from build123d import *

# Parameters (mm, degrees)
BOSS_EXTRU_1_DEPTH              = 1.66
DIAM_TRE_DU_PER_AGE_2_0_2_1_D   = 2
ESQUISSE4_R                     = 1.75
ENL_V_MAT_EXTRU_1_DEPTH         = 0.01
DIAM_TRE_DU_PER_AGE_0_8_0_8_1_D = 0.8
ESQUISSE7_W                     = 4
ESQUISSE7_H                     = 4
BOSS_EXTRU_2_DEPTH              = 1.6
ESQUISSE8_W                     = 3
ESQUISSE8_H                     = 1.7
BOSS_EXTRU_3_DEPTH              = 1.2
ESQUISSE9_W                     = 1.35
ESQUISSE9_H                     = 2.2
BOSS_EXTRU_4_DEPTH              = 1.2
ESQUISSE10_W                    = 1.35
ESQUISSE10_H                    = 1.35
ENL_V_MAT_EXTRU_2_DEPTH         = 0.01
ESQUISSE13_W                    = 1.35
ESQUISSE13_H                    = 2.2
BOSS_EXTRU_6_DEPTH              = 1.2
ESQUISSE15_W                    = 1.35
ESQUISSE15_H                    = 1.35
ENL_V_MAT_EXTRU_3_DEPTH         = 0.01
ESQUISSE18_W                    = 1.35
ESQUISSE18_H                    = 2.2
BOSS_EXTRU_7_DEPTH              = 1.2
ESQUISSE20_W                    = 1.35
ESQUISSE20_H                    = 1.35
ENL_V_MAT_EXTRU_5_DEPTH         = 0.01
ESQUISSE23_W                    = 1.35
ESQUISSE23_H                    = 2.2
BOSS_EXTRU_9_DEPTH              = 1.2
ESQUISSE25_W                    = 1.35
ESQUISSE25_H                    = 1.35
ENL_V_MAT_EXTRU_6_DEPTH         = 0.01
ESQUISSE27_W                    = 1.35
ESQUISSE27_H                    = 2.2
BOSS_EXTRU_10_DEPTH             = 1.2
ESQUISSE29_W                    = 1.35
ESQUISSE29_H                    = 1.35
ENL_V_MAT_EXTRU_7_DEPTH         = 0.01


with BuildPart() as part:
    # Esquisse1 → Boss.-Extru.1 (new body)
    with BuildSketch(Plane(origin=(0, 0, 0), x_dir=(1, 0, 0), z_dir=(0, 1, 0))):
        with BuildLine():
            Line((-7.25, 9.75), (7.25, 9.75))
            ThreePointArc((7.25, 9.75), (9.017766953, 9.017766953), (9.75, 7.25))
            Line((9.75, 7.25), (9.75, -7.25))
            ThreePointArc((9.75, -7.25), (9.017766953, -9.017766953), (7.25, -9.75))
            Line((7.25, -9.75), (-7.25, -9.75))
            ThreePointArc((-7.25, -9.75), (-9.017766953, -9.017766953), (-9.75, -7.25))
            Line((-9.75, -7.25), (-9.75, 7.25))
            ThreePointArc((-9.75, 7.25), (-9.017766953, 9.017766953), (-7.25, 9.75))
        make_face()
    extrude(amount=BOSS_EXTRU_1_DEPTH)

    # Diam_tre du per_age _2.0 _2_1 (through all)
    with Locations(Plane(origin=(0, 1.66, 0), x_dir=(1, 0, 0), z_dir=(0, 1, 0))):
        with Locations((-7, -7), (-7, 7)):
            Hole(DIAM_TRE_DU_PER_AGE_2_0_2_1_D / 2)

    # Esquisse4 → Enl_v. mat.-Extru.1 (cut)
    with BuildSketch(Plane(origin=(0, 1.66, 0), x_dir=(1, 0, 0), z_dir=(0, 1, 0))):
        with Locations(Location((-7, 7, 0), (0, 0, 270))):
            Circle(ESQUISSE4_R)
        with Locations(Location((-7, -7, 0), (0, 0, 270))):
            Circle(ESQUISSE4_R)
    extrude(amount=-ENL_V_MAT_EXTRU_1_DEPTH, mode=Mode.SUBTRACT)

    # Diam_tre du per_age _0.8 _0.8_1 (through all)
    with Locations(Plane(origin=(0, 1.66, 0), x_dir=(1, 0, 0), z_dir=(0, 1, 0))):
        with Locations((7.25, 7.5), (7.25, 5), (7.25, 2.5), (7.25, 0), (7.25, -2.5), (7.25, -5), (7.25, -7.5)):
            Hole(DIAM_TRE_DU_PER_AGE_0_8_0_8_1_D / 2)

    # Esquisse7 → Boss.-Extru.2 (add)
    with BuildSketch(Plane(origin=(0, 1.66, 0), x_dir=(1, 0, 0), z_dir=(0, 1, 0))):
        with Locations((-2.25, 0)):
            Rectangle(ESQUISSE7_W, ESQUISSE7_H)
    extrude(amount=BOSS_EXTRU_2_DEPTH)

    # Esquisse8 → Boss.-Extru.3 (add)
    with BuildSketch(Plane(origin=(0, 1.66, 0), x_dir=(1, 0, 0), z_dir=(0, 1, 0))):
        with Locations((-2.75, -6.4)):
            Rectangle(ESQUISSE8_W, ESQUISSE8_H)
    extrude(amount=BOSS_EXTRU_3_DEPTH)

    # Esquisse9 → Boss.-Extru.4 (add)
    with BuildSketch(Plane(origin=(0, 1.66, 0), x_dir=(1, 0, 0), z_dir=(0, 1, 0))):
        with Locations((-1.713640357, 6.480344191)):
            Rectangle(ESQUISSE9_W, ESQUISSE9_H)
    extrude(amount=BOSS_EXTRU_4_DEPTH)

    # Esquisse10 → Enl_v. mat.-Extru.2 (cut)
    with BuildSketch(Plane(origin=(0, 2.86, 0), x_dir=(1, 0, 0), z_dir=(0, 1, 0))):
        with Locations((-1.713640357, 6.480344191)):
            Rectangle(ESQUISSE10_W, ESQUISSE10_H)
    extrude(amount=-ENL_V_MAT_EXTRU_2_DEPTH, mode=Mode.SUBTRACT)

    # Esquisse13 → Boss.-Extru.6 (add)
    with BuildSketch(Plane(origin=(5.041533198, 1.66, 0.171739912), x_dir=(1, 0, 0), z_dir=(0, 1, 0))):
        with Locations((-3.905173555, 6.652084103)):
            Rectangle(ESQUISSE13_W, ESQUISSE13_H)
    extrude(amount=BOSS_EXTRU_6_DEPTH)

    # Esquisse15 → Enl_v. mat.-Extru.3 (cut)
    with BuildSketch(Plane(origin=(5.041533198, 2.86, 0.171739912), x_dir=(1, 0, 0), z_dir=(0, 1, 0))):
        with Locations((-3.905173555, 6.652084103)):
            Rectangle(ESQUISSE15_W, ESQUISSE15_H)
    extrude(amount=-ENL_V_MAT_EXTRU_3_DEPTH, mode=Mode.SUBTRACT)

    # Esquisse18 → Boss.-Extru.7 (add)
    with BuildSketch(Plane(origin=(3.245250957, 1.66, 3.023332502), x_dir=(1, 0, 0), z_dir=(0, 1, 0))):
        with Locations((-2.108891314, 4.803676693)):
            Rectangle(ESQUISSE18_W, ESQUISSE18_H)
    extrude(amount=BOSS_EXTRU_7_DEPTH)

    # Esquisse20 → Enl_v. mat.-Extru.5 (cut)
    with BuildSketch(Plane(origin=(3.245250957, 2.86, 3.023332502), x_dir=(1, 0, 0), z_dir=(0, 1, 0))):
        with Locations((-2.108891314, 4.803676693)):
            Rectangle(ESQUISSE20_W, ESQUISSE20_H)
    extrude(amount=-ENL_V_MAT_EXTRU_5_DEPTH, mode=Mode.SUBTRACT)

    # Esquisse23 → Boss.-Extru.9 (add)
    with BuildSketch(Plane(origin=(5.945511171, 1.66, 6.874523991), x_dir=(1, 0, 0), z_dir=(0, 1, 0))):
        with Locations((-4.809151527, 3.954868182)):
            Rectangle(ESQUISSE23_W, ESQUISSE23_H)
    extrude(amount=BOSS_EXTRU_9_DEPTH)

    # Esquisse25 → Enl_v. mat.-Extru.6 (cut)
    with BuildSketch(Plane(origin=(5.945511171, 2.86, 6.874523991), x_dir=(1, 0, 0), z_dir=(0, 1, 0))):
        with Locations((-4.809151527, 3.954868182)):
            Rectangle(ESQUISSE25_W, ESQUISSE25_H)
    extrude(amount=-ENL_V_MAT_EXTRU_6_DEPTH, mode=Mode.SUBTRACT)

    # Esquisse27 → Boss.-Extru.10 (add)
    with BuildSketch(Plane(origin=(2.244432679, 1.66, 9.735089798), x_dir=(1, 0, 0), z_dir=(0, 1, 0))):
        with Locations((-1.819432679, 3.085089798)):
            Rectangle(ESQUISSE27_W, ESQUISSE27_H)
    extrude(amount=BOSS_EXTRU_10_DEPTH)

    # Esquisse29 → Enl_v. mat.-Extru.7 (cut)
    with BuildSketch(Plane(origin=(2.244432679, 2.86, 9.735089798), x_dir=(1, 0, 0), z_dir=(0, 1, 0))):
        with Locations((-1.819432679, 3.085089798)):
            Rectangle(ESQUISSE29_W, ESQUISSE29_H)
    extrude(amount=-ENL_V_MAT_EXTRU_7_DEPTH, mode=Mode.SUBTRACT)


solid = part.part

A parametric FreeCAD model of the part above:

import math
import FreeCAD as App
import Part
import Sketcher
from FreeCAD import Vector

doc = App.newDocument("Part")
body = doc.addObject("PartDesign::Body", "Body")

# Sketch on XZ plane
sketch1 = body.newObject("Sketcher::SketchObject", "Sketch")
sketch1.AttachmentSupport = (doc.getObject("XZ_Plane"), [""])
sketch1.MapMode = "FlatFace"
sketch1.addGeometry(Part.LineSegment(Vector(7.2, -9.8, 0), Vector(-7.2, -9.8, 0)), False)
sketch1.addGeometry(Part.ArcOfCircle(Part.Circle(Vector(-7.2, -7.2, 0), Vector(0, 0, 1), 2.5), math.radians(180), math.radians(270)), False)
sketch1.addGeometry(Part.LineSegment(Vector(-9.8, -7.2, 0), Vector(-9.8, 7.2, 0)), False)
sketch1.addGeometry(Part.ArcOfCircle(Part.Circle(Vector(-7.2, 7.2, 0), Vector(0, 0, 1), 2.5), math.radians(90), math.radians(180)), False)
sketch1.addGeometry(Part.LineSegment(Vector(-7.2, 9.8, 0), Vector(7.2, 9.8, 0)), False)
sketch1.addGeometry(Part.ArcOfCircle(Part.Circle(Vector(7.2, 7.2, 0), Vector(0, 0, 1), 2.5), math.radians(0), math.radians(90)), False)
sketch1.addGeometry(Part.LineSegment(Vector(9.8, 7.2, 0), Vector(9.8, -7.2, 0)), False)
sketch1.addGeometry(Part.ArcOfCircle(Part.Circle(Vector(7.2, -7.2, 0), Vector(0, 0, 1), 2.5), math.radians(-90), math.radians(0)), False)
sketch1.addConstraint(Sketcher.Constraint("Tangent", 0, 2, 1, 2))
sketch1.addConstraint(Sketcher.Constraint("Tangent", 1, 1, 2, 1))
sketch1.addConstraint(Sketcher.Constraint("Tangent", 2, 2, 3, 2))
sketch1.addConstraint(Sketcher.Constraint("Tangent", 3, 1, 4, 1))
sketch1.addConstraint(Sketcher.Constraint("Tangent", 4, 2, 5, 2))
sketch1.addConstraint(Sketcher.Constraint("Tangent", 5, 1, 6, 1))
sketch1.addConstraint(Sketcher.Constraint("Tangent", 6, 2, 7, 2))
sketch1.addConstraint(Sketcher.Constraint("Tangent", 7, 1, 0, 1))
sketch1.addConstraint(Sketcher.Constraint("Horizontal", 0))
sketch1.addConstraint(Sketcher.Constraint("Vertical", 2))
sketch1.addConstraint(Sketcher.Constraint("Horizontal", 4))
sketch1.addConstraint(Sketcher.Constraint("Vertical", 6))
sketch1.addConstraint(Sketcher.Constraint("Equal", 1, 3))
sketch1.addConstraint(Sketcher.Constraint("Equal", 3, 5))
sketch1.addConstraint(Sketcher.Constraint("Equal", 5, 7))
sketch1.addConstraint(Sketcher.Constraint("Symmetric", 1, 3, 5, 3, -1, 1))
sketch1.addConstraint(Sketcher.Constraint("Equal", 4, 2))
sketch1.addConstraint(Sketcher.Constraint("Radius", 1, 2.5))
sketch1.addConstraint(Sketcher.Constraint("DistanceX", 0, 2, 0, 1, 14.5))
pad1 = body.newObject("PartDesign::Pad", "Pad")
pad1.Profile = sketch1
pad1.Length = 1.66
pad1.Reversed = True

# Sketch on XZ plane
sketch2 = body.newObject("Sketcher::SketchObject", "Sketch001")
sketch2.AttachmentSupport = (doc.getObject("XZ_Plane"), [""])
sketch2.MapMode = "FlatFace"
sketch2.AttachmentOffset = App.Placement(Vector(0, 0, -1.66), App.Rotation())
sketch2.addGeometry(Part.Circle(Vector(-7, 7, 0), Vector(0, 0, 1), 1), False)
sketch2.addGeometry(Part.Circle(Vector(-7, -7, 0), Vector(0, 0, 1), 1), False)
sketch2.addConstraint(Sketcher.Constraint("Equal", 0, 1))
sketch2.addConstraint(Sketcher.Constraint("Symmetric", 0, 3, 1, 3, -1))
sketch2.addConstraint(Sketcher.Constraint("Diameter", 0, 2.0))
sketch2.addConstraint(Sketcher.Constraint("DistanceX", 0, 3, -1, 1, 7.0))
sketch2.addConstraint(Sketcher.Constraint("DistanceY", -1, 1, 0, 3, 7.0))
doc.recompute()
hole = body.newObject("PartDesign::Hole", "Hole")
hole.Profile = sketch2
hole.ThreadType = "None"
hole.Diameter = 2
hole.DepthType = "ThroughAll"
hole.Reversed = True

# Sketch on XZ plane
sketch3 = body.newObject("Sketcher::SketchObject", "Sketch002")
sketch3.AttachmentSupport = (doc.getObject("XZ_Plane"), [""])
sketch3.MapMode = "FlatFace"
sketch3.AttachmentOffset = App.Placement(Vector(0, 0, -1.66), App.Rotation())
sketch3.addGeometry(Part.Circle(Vector(-7, -7, 0), Vector(0, 0, 1), 1.8), False)
sketch3.addGeometry(Part.Circle(Vector(-7, 7, 0), Vector(0, 0, 1), 1.8), False)
sketch3.addConstraint(Sketcher.Constraint("Equal", 0, 1))
sketch3.addConstraint(Sketcher.Constraint("Symmetric", 0, 3, 1, 3, -1))
sketch3.addConstraint(Sketcher.Constraint("Diameter", 0, 3.5))
sketch3.addConstraint(Sketcher.Constraint("DistanceX", 0, 3, -1, 1, 7.0))
sketch3.addConstraint(Sketcher.Constraint("DistanceY", 0, 3, -1, 1, 7.0))
pocket1 = body.newObject("PartDesign::Pocket", "Pocket")
pocket1.Profile = sketch3
pocket1.Length = 0.01
pocket1.Reversed = True

# Sketch on XZ plane
sketch4 = body.newObject("Sketcher::SketchObject", "Sketch003")
sketch4.AttachmentSupport = (doc.getObject("XZ_Plane"), [""])
sketch4.MapMode = "FlatFace"
sketch4.AttachmentOffset = App.Placement(Vector(0, 0, -1.66), App.Rotation())
sketch4.addGeometry(Part.Circle(Vector(7.25, -7.5, 0), Vector(0, 0, 1), 0.4), False)
sketch4.addGeometry(Part.Circle(Vector(7.25, -5, 0), Vector(0, 0, 1), 0.4), False)
sketch4.addGeometry(Part.Circle(Vector(7.25, -2.5, 0), Vector(0, 0, 1), 0.4), False)
sketch4.addGeometry(Part.Circle(Vector(7.25, 0, 0), Vector(0, 0, 1), 0.4), False)
sketch4.addGeometry(Part.Circle(Vector(7.25, 2.5, 0), Vector(0, 0, 1), 0.4), False)
sketch4.addGeometry(Part.Circle(Vector(7.25, 5, 0), Vector(0, 0, 1), 0.4), False)
sketch4.addGeometry(Part.Circle(Vector(7.25, 7.5, 0), Vector(0, 0, 1), 0.4), False)
sketch4.addConstraint(Sketcher.Constraint("Equal", 0, 1))
sketch4.addConstraint(Sketcher.Constraint("Equal", 1, 2))
sketch4.addConstraint(Sketcher.Constraint("Equal", 2, 3))
sketch4.addConstraint(Sketcher.Constraint("Equal", 3, 4))
sketch4.addConstraint(Sketcher.Constraint("Equal", 4, 5))
sketch4.addConstraint(Sketcher.Constraint("Equal", 5, 6))
sketch4.addConstraint(Sketcher.Constraint("Symmetric", 2, 3, 4, 3, -1))
sketch4.addConstraint(Sketcher.Constraint("Symmetric", 1, 3, 5, 3, -1))
sketch4.addConstraint(Sketcher.Constraint("Symmetric", 0, 3, 6, 3, -1))
sketch4.addConstraint(Sketcher.Constraint("PointOnObject", 3, 3, -1))
sketch4.addConstraint(Sketcher.Constraint("Vertical", 0, 3, 1, 3))
sketch4.addConstraint(Sketcher.Constraint("Vertical", 1, 3, 2, 3))
sketch4.addConstraint(Sketcher.Constraint("Vertical", 2, 3, 3, 3))
sketch4.addConstraint(Sketcher.Constraint("Diameter", 0, 0.8))
sketch4.addConstraint(Sketcher.Constraint("DistanceY", 1, 3, -1, 1, 5.0))
sketch4.addConstraint(Sketcher.Constraint("DistanceY", 0, 3, 2, 3, 5.0))
sketch4.addConstraint(Sketcher.Constraint("DistanceY", 2, 3, 4, 3, 5.0))
sketch4.addConstraint(Sketcher.Constraint("DistanceX", -1, 1, 0, 3, 7.25))
doc.recompute()
hole2 = body.newObject("PartDesign::Hole", "Hole001")
hole2.Profile = sketch4
hole2.ThreadType = "None"
hole2.Diameter = 0.8
hole2.DepthType = "ThroughAll"
hole2.Reversed = True

# Sketch on XZ plane
sketch5 = body.newObject("Sketcher::SketchObject", "Sketch004")
sketch5.AttachmentSupport = (doc.getObject("XZ_Plane"), [""])
sketch5.MapMode = "FlatFace"
sketch5.AttachmentOffset = App.Placement(Vector(0, 0, -1.66), App.Rotation())
sketch5.addGeometry(Part.LineSegment(Vector(-4.2, -2, 0), Vector(-4.2, 2, 0)), False)
sketch5.addGeometry(Part.LineSegment(Vector(-4.2, 2, 0), Vector(-0.2, 2, 0)), False)
sketch5.addGeometry(Part.LineSegment(Vector(-0.2, 2, 0), Vector(-0.2, -2, 0)), False)
sketch5.addGeometry(Part.LineSegment(Vector(-0.2, -2, 0), Vector(-4.2, -2, 0)), False)
sketch5.addConstraint(Sketcher.Constraint("Coincident", 0, 2, 1, 1))
sketch5.addConstraint(Sketcher.Constraint("Coincident", 1, 2, 2, 1))
sketch5.addConstraint(Sketcher.Constraint("Coincident", 2, 2, 3, 1))
sketch5.addConstraint(Sketcher.Constraint("Coincident", 3, 2, 0, 1))
sketch5.addConstraint(Sketcher.Constraint("Vertical", 0))
sketch5.addConstraint(Sketcher.Constraint("Horizontal", 1))
sketch5.addConstraint(Sketcher.Constraint("Vertical", 2))
sketch5.addConstraint(Sketcher.Constraint("Horizontal", 3))
sketch5.addConstraint(Sketcher.Constraint("Equal", 3, 0))
sketch5.addConstraint(Sketcher.Constraint("DistanceX", 1, 1, 1, 2, 4.0))
sketch5.addConstraint(Sketcher.Constraint("DistanceY", -1, 1, 0, 2, 2.0))
sketch5.addConstraint(Sketcher.Constraint("DistanceX", 0, 2, -1, 1, 4.25))
pad2 = body.newObject("PartDesign::Pad", "Pad001")
pad2.Profile = sketch5
pad2.Length = 1.6
pad2.Reversed = True

# Sketch on XZ plane
sketch6 = body.newObject("Sketcher::SketchObject", "Sketch005")
sketch6.AttachmentSupport = (doc.getObject("XZ_Plane"), [""])
sketch6.MapMode = "FlatFace"
sketch6.AttachmentOffset = App.Placement(Vector(0, 0, -1.66), App.Rotation())
sketch6.addGeometry(Part.LineSegment(Vector(-4.2, 5.5, 0), Vector(-4.2, 7.2, 0)), False)
sketch6.addGeometry(Part.LineSegment(Vector(-4.2, 7.2, 0), Vector(-1.2, 7.2, 0)), False)
sketch6.addGeometry(Part.LineSegment(Vector(-1.2, 7.2, 0), Vector(-1.2, 5.5, 0)), False)
sketch6.addGeometry(Part.LineSegment(Vector(-1.2, 5.5, 0), Vector(-4.2, 5.5, 0)), False)
sketch6.addConstraint(Sketcher.Constraint("Coincident", 0, 2, 1, 1))
sketch6.addConstraint(Sketcher.Constraint("Coincident", 1, 2, 2, 1))
sketch6.addConstraint(Sketcher.Constraint("Coincident", 2, 2, 3, 1))
sketch6.addConstraint(Sketcher.Constraint("Coincident", 3, 2, 0, 1))
sketch6.addConstraint(Sketcher.Constraint("Vertical", 0))
sketch6.addConstraint(Sketcher.Constraint("Horizontal", 1))
sketch6.addConstraint(Sketcher.Constraint("Vertical", 2))
sketch6.addConstraint(Sketcher.Constraint("Horizontal", 3))
sketch6.addConstraint(Sketcher.Constraint("DistanceX", 1, 1, 1, 2, 3.0))
sketch6.addConstraint(Sketcher.Constraint("DistanceY", 0, 1, 0, 2, 1.7))
sketch6.addConstraint(Sketcher.Constraint("DistanceX", 0, 2, -1, 1, 4.25))
sketch6.addConstraint(Sketcher.Constraint("DistanceY", -1, 1, 0, 2, 7.25))
pad3 = body.newObject("PartDesign::Pad", "Pad002")
pad3.Profile = sketch6
pad3.Length = 1.2
pad3.Reversed = True

# Sketch on XZ plane
sketch7 = body.newObject("Sketcher::SketchObject", "Sketch006")
sketch7.AttachmentSupport = (doc.getObject("XZ_Plane"), [""])
sketch7.MapMode = "FlatFace"
sketch7.AttachmentOffset = App.Placement(Vector(0, 0, -1.66), App.Rotation())
sketch7.addGeometry(Part.LineSegment(Vector(-2.4, -7.6, 0), Vector(-2.4, -5.4, 0)), False)
sketch7.addGeometry(Part.LineSegment(Vector(-2.4, -5.4, 0), Vector(-1, -5.4, 0)), False)
sketch7.addGeometry(Part.LineSegment(Vector(-1, -5.4, 0), Vector(-1, -7.6, 0)), False)
sketch7.addGeometry(Part.LineSegment(Vector(-1, -7.6, 0), Vector(-2.4, -7.6, 0)), False)
sketch7.addConstraint(Sketcher.Constraint("Coincident", 0, 2, 1, 1))
sketch7.addConstraint(Sketcher.Constraint("Coincident", 1, 2, 2, 1))
sketch7.addConstraint(Sketcher.Constraint("Coincident", 2, 2, 3, 1))
sketch7.addConstraint(Sketcher.Constraint("Coincident", 3, 2, 0, 1))
sketch7.addConstraint(Sketcher.Constraint("Vertical", 0))
sketch7.addConstraint(Sketcher.Constraint("Horizontal", 1))
sketch7.addConstraint(Sketcher.Constraint("Vertical", 2))
sketch7.addConstraint(Sketcher.Constraint("Horizontal", 3))
sketch7.addConstraint(Sketcher.Constraint("DistanceY", 0, 1, 0, 2, 2.2))
sketch7.addConstraint(Sketcher.Constraint("DistanceX", 1, 1, 1, 2, 1.35))
sketch7.addConstraint(Sketcher.Constraint("DistanceX", 0, 2, -1, 1, 2.38864))
sketch7.addConstraint(Sketcher.Constraint("DistanceY", 0, 2, -1, 1, 5.380344))
pad4 = body.newObject("PartDesign::Pad", "Pad003")
pad4.Profile = sketch7
pad4.Length = 1.2
pad4.Reversed = True

# Sketch on XZ plane
sketch8 = body.newObject("Sketcher::SketchObject", "Sketch007")
sketch8.AttachmentSupport = (doc.getObject("XZ_Plane"), [""])
sketch8.MapMode = "FlatFace"
sketch8.AttachmentOffset = App.Placement(Vector(0, 0, -2.86), App.Rotation())
sketch8.addGeometry(Part.LineSegment(Vector(-2.4, -7.2, 0), Vector(-2.4, -5.8, 0)), False)
sketch8.addGeometry(Part.LineSegment(Vector(-2.4, -5.8, 0), Vector(-1, -5.8, 0)), False)
sketch8.addGeometry(Part.LineSegment(Vector(-1, -5.8, 0), Vector(-1, -7.2, 0)), False)
sketch8.addGeometry(Part.LineSegment(Vector(-1, -7.2, 0), Vector(-2.4, -7.2, 0)), False)
sketch8.addConstraint(Sketcher.Constraint("Coincident", 0, 2, 1, 1))
sketch8.addConstraint(Sketcher.Constraint("Coincident", 1, 2, 2, 1))
sketch8.addConstraint(Sketcher.Constraint("Coincident", 2, 2, 3, 1))
sketch8.addConstraint(Sketcher.Constraint("Coincident", 3, 2, 0, 1))
sketch8.addConstraint(Sketcher.Constraint("Vertical", 0))
sketch8.addConstraint(Sketcher.Constraint("Horizontal", 1))
sketch8.addConstraint(Sketcher.Constraint("Vertical", 2))
sketch8.addConstraint(Sketcher.Constraint("Horizontal", 3))
sketch8.addConstraint(Sketcher.Constraint("Equal", 3, 0))
sketch8.addConstraint(Sketcher.Constraint("DistanceX", 1, 1, 1, 2, 1.35))
sketch8.addConstraint(Sketcher.Constraint("DistanceX", 0, 2, -1, 1, 2.38864))
sketch8.addConstraint(Sketcher.Constraint("DistanceY", 0, 2, -1, 1, 5.805344))
pocket2 = body.newObject("PartDesign::Pocket", "Pocket001")
pocket2.Profile = sketch8
pocket2.Length = 0.01
pocket2.Reversed = True

# Sketch on XZ plane
sketch9 = body.newObject("Sketcher::SketchObject", "Sketch008")
sketch9.AttachmentSupport = (doc.getObject("XZ_Plane"), [""])
sketch9.MapMode = "FlatFace"
sketch9.AttachmentOffset = App.Placement(Vector(0, 0, -1.66), App.Rotation())
sketch9.addGeometry(Part.LineSegment(Vector(0.5, -7.6, 0), Vector(0.5, -5.4, 0)), False)
sketch9.addGeometry(Part.LineSegment(Vector(0.5, -5.4, 0), Vector(1.8, -5.4, 0)), False)
sketch9.addGeometry(Part.LineSegment(Vector(1.8, -5.4, 0), Vector(1.8, -7.6, 0)), False)
sketch9.addGeometry(Part.LineSegment(Vector(1.8, -7.6, 0), Vector(0.5, -7.6, 0)), False)
sketch9.addConstraint(Sketcher.Constraint("Coincident", 0, 2, 1, 1))
sketch9.addConstraint(Sketcher.Constraint("Coincident", 1, 2, 2, 1))
sketch9.addConstraint(Sketcher.Constraint("Coincident", 2, 2, 3, 1))
sketch9.addConstraint(Sketcher.Constraint("Coincident", 3, 2, 0, 1))
sketch9.addConstraint(Sketcher.Constraint("Vertical", 0))
sketch9.addConstraint(Sketcher.Constraint("Horizontal", 1))
sketch9.addConstraint(Sketcher.Constraint("Vertical", 2))
sketch9.addConstraint(Sketcher.Constraint("Horizontal", 3))
sketch9.addConstraint(Sketcher.Constraint("DistanceY", 0, 1, 0, 2, 2.2))
sketch9.addConstraint(Sketcher.Constraint("DistanceX", 1, 1, 1, 2, 1.35))
sketch9.addConstraint(Sketcher.Constraint("DistanceX", -1, 1, 0, 2, 0.46136))
sketch9.addConstraint(Sketcher.Constraint("DistanceY", 0, 2, -1, 1, 5.380344))
pad5 = body.newObject("PartDesign::Pad", "Pad004")
pad5.Profile = sketch9
pad5.Length = 1.2
pad5.Reversed = True

# Sketch on XZ plane
sketch10 = body.newObject("Sketcher::SketchObject", "Sketch009")
sketch10.AttachmentSupport = (doc.getObject("XZ_Plane"), [""])
sketch10.MapMode = "FlatFace"
sketch10.AttachmentOffset = App.Placement(Vector(0, 0, -2.86), App.Rotation())
sketch10.addGeometry(Part.LineSegment(Vector(0.5, -7.2, 0), Vector(0.5, -5.8, 0)), False)
sketch10.addGeometry(Part.LineSegment(Vector(0.5, -5.8, 0), Vector(1.8, -5.8, 0)), False)
sketch10.addGeometry(Part.LineSegment(Vector(1.8, -5.8, 0), Vector(1.8, -7.2, 0)), False)
sketch10.addGeometry(Part.LineSegment(Vector(1.8, -7.2, 0), Vector(0.5, -7.2, 0)), False)
sketch10.addConstraint(Sketcher.Constraint("Coincident", 0, 2, 1, 1))
sketch10.addConstraint(Sketcher.Constraint("Coincident", 1, 2, 2, 1))
sketch10.addConstraint(Sketcher.Constraint("Coincident", 2, 2, 3, 1))
sketch10.addConstraint(Sketcher.Constraint("Coincident", 3, 2, 0, 1))
sketch10.addConstraint(Sketcher.Constraint("Vertical", 0))
sketch10.addConstraint(Sketcher.Constraint("Horizontal", 1))
sketch10.addConstraint(Sketcher.Constraint("Vertical", 2))
sketch10.addConstraint(Sketcher.Constraint("Horizontal", 3))
sketch10.addConstraint(Sketcher.Constraint("Equal", 3, 0))
sketch10.addConstraint(Sketcher.Constraint("DistanceX", 1, 1, 1, 2, 1.35))
sketch10.addConstraint(Sketcher.Constraint("DistanceX", -1, 1, 0, 2, 0.46136))
sketch10.addConstraint(Sketcher.Constraint("DistanceY", 0, 2, -1, 1, 5.805344))
pocket3 = body.newObject("PartDesign::Pocket", "Pocket002")
pocket3.Profile = sketch10
pocket3.Length = 0.01
pocket3.Reversed = True

# Sketch on XZ plane
sketch11 = body.newObject("Sketcher::SketchObject", "Sketch010")
sketch11.AttachmentSupport = (doc.getObject("XZ_Plane"), [""])
sketch11.MapMode = "FlatFace"
sketch11.AttachmentOffset = App.Placement(Vector(0, 0, -1.66), App.Rotation())
sketch11.addGeometry(Part.LineSegment(Vector(0.5, -2.9, 0), Vector(0.5, -0.7, 0)), False)
sketch11.addGeometry(Part.LineSegment(Vector(0.5, -0.7, 0), Vector(1.8, -0.7, 0)), False)
sketch11.addGeometry(Part.LineSegment(Vector(1.8, -0.7, 0), Vector(1.8, -2.9, 0)), False)
sketch11.addGeometry(Part.LineSegment(Vector(1.8, -2.9, 0), Vector(0.5, -2.9, 0)), False)
sketch11.addConstraint(Sketcher.Constraint("Coincident", 0, 2, 1, 1))
sketch11.addConstraint(Sketcher.Constraint("Coincident", 1, 2, 2, 1))
sketch11.addConstraint(Sketcher.Constraint("Coincident", 2, 2, 3, 1))
sketch11.addConstraint(Sketcher.Constraint("Coincident", 3, 2, 0, 1))
sketch11.addConstraint(Sketcher.Constraint("Vertical", 0))
sketch11.addConstraint(Sketcher.Constraint("Horizontal", 1))
sketch11.addConstraint(Sketcher.Constraint("Vertical", 2))
sketch11.addConstraint(Sketcher.Constraint("Horizontal", 3))
sketch11.addConstraint(Sketcher.Constraint("DistanceY", 0, 1, 0, 2, 2.2))
sketch11.addConstraint(Sketcher.Constraint("DistanceX", 1, 1, 1, 2, 1.35))
sketch11.addConstraint(Sketcher.Constraint("DistanceX", -1, 1, 0, 2, 0.46136))
sketch11.addConstraint(Sketcher.Constraint("DistanceY", 0, 2, -1, 1, 0.680344))
pad6 = body.newObject("PartDesign::Pad", "Pad005")
pad6.Profile = sketch11
pad6.Length = 1.2
pad6.Reversed = True

# Sketch on XZ plane
sketch12 = body.newObject("Sketcher::SketchObject", "Sketch011")
sketch12.AttachmentSupport = (doc.getObject("XZ_Plane"), [""])
sketch12.MapMode = "FlatFace"
sketch12.AttachmentOffset = App.Placement(Vector(0, 0, -2.86), App.Rotation())
sketch12.addGeometry(Part.LineSegment(Vector(0.5, -2.5, 0), Vector(0.5, -1.1, 0)), False)
sketch12.addGeometry(Part.LineSegment(Vector(0.5, -1.1, 0), Vector(1.8, -1.1, 0)), False)
sketch12.addGeometry(Part.LineSegment(Vector(1.8, -1.1, 0), Vector(1.8, -2.5, 0)), False)
sketch12.addGeometry(Part.LineSegment(Vector(1.8, -2.5, 0), Vector(0.5, -2.5, 0)), False)
sketch12.addConstraint(Sketcher.Constraint("Coincident", 0, 2, 1, 1))
sketch12.addConstraint(Sketcher.Constraint("Coincident", 1, 2, 2, 1))
sketch12.addConstraint(Sketcher.Constraint("Coincident", 2, 2, 3, 1))
sketch12.addConstraint(Sketcher.Constraint("Coincident", 3, 2, 0, 1))
sketch12.addConstraint(Sketcher.Constraint("Vertical", 0))
sketch12.addConstraint(Sketcher.Constraint("Horizontal", 1))
sketch12.addConstraint(Sketcher.Constraint("Vertical", 2))
sketch12.addConstraint(Sketcher.Constraint("Horizontal", 3))
sketch12.addConstraint(Sketcher.Constraint("Equal", 3, 0))
sketch12.addConstraint(Sketcher.Constraint("DistanceX", 1, 1, 1, 2, 1.35))
sketch12.addConstraint(Sketcher.Constraint("DistanceX", -1, 1, 0, 2, 0.46136))
sketch12.addConstraint(Sketcher.Constraint("DistanceY", 0, 2, -1, 1, 1.105344))
pocket4 = body.newObject("PartDesign::Pocket", "Pocket003")
pocket4.Profile = sketch12
pocket4.Length = 0.01
pocket4.Reversed = True

# Sketch on XZ plane
sketch13 = body.newObject("Sketcher::SketchObject", "Sketch012")
sketch13.AttachmentSupport = (doc.getObject("XZ_Plane"), [""])
sketch13.MapMode = "FlatFace"
sketch13.AttachmentOffset = App.Placement(Vector(0, 0, -1.66), App.Rotation())
sketch13.addGeometry(Part.LineSegment(Vector(0.5, 1.8, 0), Vector(0.5, 4, 0)), False)
sketch13.addGeometry(Part.LineSegment(Vector(0.5, 4, 0), Vector(1.8, 4, 0)), False)
sketch13.addGeometry(Part.LineSegment(Vector(1.8, 4, 0), Vector(1.8, 1.8, 0)), False)
sketch13.addGeometry(Part.LineSegment(Vector(1.8, 1.8, 0), Vector(0.5, 1.8, 0)), False)
sketch13.addConstraint(Sketcher.Constraint("Coincident", 0, 2, 1, 1))
sketch13.addConstraint(Sketcher.Constraint("Coincident", 1, 2, 2, 1))
sketch13.addConstraint(Sketcher.Constraint("Coincident", 2, 2, 3, 1))
sketch13.addConstraint(Sketcher.Constraint("Coincident", 3, 2, 0, 1))
sketch13.addConstraint(Sketcher.Constraint("Vertical", 0))
sketch13.addConstraint(Sketcher.Constraint("Horizontal", 1))
sketch13.addConstraint(Sketcher.Constraint("Vertical", 2))
sketch13.addConstraint(Sketcher.Constraint("Horizontal", 3))
sketch13.addConstraint(Sketcher.Constraint("DistanceY", 0, 1, 0, 2, 2.2))
sketch13.addConstraint(Sketcher.Constraint("DistanceX", 1, 1, 1, 2, 1.35))
sketch13.addConstraint(Sketcher.Constraint("DistanceX", -1, 1, 0, 2, 0.46136))
sketch13.addConstraint(Sketcher.Constraint("DistanceY", -1, 1, 0, 2, 4.019656))
pad7 = body.newObject("PartDesign::Pad", "Pad006")
pad7.Profile = sketch13
pad7.Length = 1.2
pad7.Reversed = True

# Sketch on XZ plane
sketch14 = body.newObject("Sketcher::SketchObject", "Sketch013")
sketch14.AttachmentSupport = (doc.getObject("XZ_Plane"), [""])
sketch14.MapMode = "FlatFace"
sketch14.AttachmentOffset = App.Placement(Vector(0, 0, -2.86), App.Rotation())
sketch14.addGeometry(Part.LineSegment(Vector(0.5, 2.2, 0), Vector(0.5, 3.6, 0)), False)
sketch14.addGeometry(Part.LineSegment(Vector(0.5, 3.6, 0), Vector(1.8, 3.6, 0)), False)
sketch14.addGeometry(Part.LineSegment(Vector(1.8, 3.6, 0), Vector(1.8, 2.2, 0)), False)
sketch14.addGeometry(Part.LineSegment(Vector(1.8, 2.2, 0), Vector(0.5, 2.2, 0)), False)
sketch14.addConstraint(Sketcher.Constraint("Coincident", 0, 2, 1, 1))
sketch14.addConstraint(Sketcher.Constraint("Coincident", 1, 2, 2, 1))
sketch14.addConstraint(Sketcher.Constraint("Coincident", 2, 2, 3, 1))
sketch14.addConstraint(Sketcher.Constraint("Coincident", 3, 2, 0, 1))
sketch14.addConstraint(Sketcher.Constraint("Vertical", 0))
sketch14.addConstraint(Sketcher.Constraint("Horizontal", 1))
sketch14.addConstraint(Sketcher.Constraint("Vertical", 2))
sketch14.addConstraint(Sketcher.Constraint("Horizontal", 3))
sketch14.addConstraint(Sketcher.Constraint("Equal", 3, 0))
sketch14.addConstraint(Sketcher.Constraint("DistanceX", 1, 1, 1, 2, 1.35))
sketch14.addConstraint(Sketcher.Constraint("DistanceX", -1, 1, 0, 2, 0.46136))
sketch14.addConstraint(Sketcher.Constraint("DistanceY", -1, 1, 0, 2, 3.594656))
pocket5 = body.newObject("PartDesign::Pocket", "Pocket004")
pocket5.Profile = sketch14
pocket5.Length = 0.01
pocket5.Reversed = True

# Sketch on XZ plane
sketch15 = body.newObject("Sketcher::SketchObject", "Sketch014")
sketch15.AttachmentSupport = (doc.getObject("XZ_Plane"), [""])
sketch15.MapMode = "FlatFace"
sketch15.AttachmentOffset = App.Placement(Vector(0, 0, -1.66), App.Rotation())
sketch15.addGeometry(Part.LineSegment(Vector(-0.2, 5.5, 0), Vector(-0.2, 7.8, 0)), False)
sketch15.addGeometry(Part.LineSegment(Vector(-0.2, 7.8, 0), Vector(1.1, 7.8, 0)), False)
sketch15.addGeometry(Part.LineSegment(Vector(1.1, 7.8, 0), Vector(1.1, 5.5, 0)), False)
sketch15.addGeometry(Part.LineSegment(Vector(1.1, 5.5, 0), Vector(-0.2, 5.5, 0)), False)
sketch15.addConstraint(Sketcher.Constraint("Coincident", 0, 2, 1, 1))
sketch15.addConstraint(Sketcher.Constraint("Coincident", 1, 2, 2, 1))
sketch15.addConstraint(Sketcher.Constraint("Coincident", 2, 2, 3, 1))
sketch15.addConstraint(Sketcher.Constraint("Coincident", 3, 2, 0, 1))
sketch15.addConstraint(Sketcher.Constraint("Vertical", 0))
sketch15.addConstraint(Sketcher.Constraint("Horizontal", 1))
sketch15.addConstraint(Sketcher.Constraint("Vertical", 2))
sketch15.addConstraint(Sketcher.Constraint("Horizontal", 3))
sketch15.addConstraint(Sketcher.Constraint("DistanceY", 0, 1, 0, 2, 2.2))
sketch15.addConstraint(Sketcher.Constraint("DistanceX", 1, 1, 1, 2, 1.35))
sketch15.addConstraint(Sketcher.Constraint("DistanceX", -1, 1, 1, 2, 1.1))
sketch15.addConstraint(Sketcher.Constraint("DistanceY", -1, 1, 0, 2, 7.75))
pad8 = body.newObject("PartDesign::Pad", "Pad007")
pad8.Profile = sketch15
pad8.Length = 1.2
pad8.Reversed = True

# Sketch on XZ plane
sketch16 = body.newObject("Sketcher::SketchObject", "Sketch015")
sketch16.AttachmentSupport = (doc.getObject("XZ_Plane"), [""])
sketch16.MapMode = "FlatFace"
sketch16.AttachmentOffset = App.Placement(Vector(0, 0, -2.86), App.Rotation())
sketch16.addGeometry(Part.LineSegment(Vector(-0.2, 6, 0), Vector(-0.2, 7.3, 0)), False)
sketch16.addGeometry(Part.LineSegment(Vector(-0.2, 7.3, 0), Vector(1.1, 7.3, 0)), False)
sketch16.addGeometry(Part.LineSegment(Vector(1.1, 7.3, 0), Vector(1.1, 6, 0)), False)
sketch16.addGeometry(Part.LineSegment(Vector(1.1, 6, 0), Vector(-0.2, 6, 0)), False)
sketch16.addConstraint(Sketcher.Constraint("Coincident", 0, 2, 1, 1))
sketch16.addConstraint(Sketcher.Constraint("Coincident", 1, 2, 2, 1))
sketch16.addConstraint(Sketcher.Constraint("Coincident", 2, 2, 3, 1))
sketch16.addConstraint(Sketcher.Constraint("Coincident", 3, 2, 0, 1))
sketch16.addConstraint(Sketcher.Constraint("Vertical", 0))
sketch16.addConstraint(Sketcher.Constraint("Horizontal", 1))
sketch16.addConstraint(Sketcher.Constraint("Vertical", 2))
sketch16.addConstraint(Sketcher.Constraint("Horizontal", 3))
sketch16.addConstraint(Sketcher.Constraint("Equal", 3, 0))
sketch16.addConstraint(Sketcher.Constraint("DistanceX", 1, 1, 1, 2, 1.35))
sketch16.addConstraint(Sketcher.Constraint("DistanceX", -1, 1, 1, 2, 1.1))
sketch16.addConstraint(Sketcher.Constraint("DistanceY", -1, 1, 0, 2, 7.325))
pocket6 = body.newObject("PartDesign::Pocket", "Pocket005")
pocket6.Profile = sketch16
pocket6.Length = 0.01
pocket6.Reversed = True

doc.recompute()
